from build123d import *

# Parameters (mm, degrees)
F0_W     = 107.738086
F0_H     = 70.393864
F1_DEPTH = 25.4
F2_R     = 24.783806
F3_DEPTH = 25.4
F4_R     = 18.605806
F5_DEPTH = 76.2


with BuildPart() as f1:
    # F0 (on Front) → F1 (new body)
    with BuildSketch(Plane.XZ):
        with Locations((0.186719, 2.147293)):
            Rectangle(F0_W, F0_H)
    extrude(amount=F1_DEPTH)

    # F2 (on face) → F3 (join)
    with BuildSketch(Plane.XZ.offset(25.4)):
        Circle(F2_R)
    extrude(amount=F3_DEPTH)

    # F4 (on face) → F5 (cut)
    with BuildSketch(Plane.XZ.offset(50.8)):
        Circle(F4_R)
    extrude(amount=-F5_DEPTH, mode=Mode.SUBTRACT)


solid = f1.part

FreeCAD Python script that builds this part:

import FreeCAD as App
import Part
import Sketcher
from FreeCAD import Vector
Q = App.Units.Quantity

doc = App.newDocument("Part")
body = doc.addObject("PartDesign::Body", "Body")

sketch1 = body.newObject("Sketcher::SketchObject", "Sketch")
sketch1.AttachmentSupport = (doc.getObject("XZ_Plane"), [""])
sketch1.MapMode = "FlatFace"
sketch1.addGeometry([
    Part.LineSegment(Vector(-54, 37, 0), Vector(-54, -33, 0)),
    Part.LineSegment(Vector(-54, -33, 0), Vector(54, -33, 0)),
    Part.LineSegment(Vector(54, -33, 0), Vector(54, 37, 0)),
    Part.LineSegment(Vector(54, 37, 0), Vector(-54, 37, 0)),
], False)
sketch1.addConstraint([
    Sketcher.Constraint("Coincident", 0, 2, 1, 1),
    Sketcher.Constraint("Coincident", 1, 2, 2, 1),
    Sketcher.Constraint("Coincident", 2, 2, 3, 1),
    Sketcher.Constraint("Coincident", 3, 2, 0, 1),
    Sketcher.Constraint("Vertical", 0),
    Sketcher.Constraint("Horizontal", 1),
    Sketcher.Constraint("Vertical", 2),
    Sketcher.Constraint("Horizontal", 3),
    Sketcher.Constraint("DistanceX", 1, 1, 1, 2, 107.738086),
    Sketcher.Constraint("DistanceY", 0, 2, 0, 1, 70.393864),
    Sketcher.Constraint("DistanceY", 0, 2, -1, 1, 33.049639),
    Sketcher.Constraint("DistanceX", 0, 2, -1, 1, 53.682324),
])
pad1 = body.newObject("PartDesign::Pad", "Pad")
pad1.Profile = sketch1
pad1.Length = Q("1 in")

sketch2 = body.newObject("Sketcher::SketchObject", "Sketch001")
sketch2.AttachmentSupport = (doc.getObject("XZ_Plane"), [""])
sketch2.MapMode = "FlatFace"
sketch2.AttachmentOffset = App.Placement(Vector(0, 0, 1 * 25.4), App.Rotation())
sketch2.addGeometry(Part.Circle(Vector(0, 0, 0), Vector(0, 0, 1), 25), False)
sketch2.addConstraint([
    Sketcher.Constraint("Coincident", 0, 3, -1, 1),
    Sketcher.Constraint("Diameter", 0, 49.567612),
])
pad2 = body.newObject("PartDesign::Pad", "Pad001")
pad2.Profile = sketch2
pad2.Length = Q("1 in")

sketch3 = body.newObject("Sketcher::SketchObject", "Sketch002")
sketch3.AttachmentSupport = (doc.getObject("XZ_Plane"), [""])
sketch3.MapMode = "FlatFace"
sketch3.AttachmentOffset = App.Placement(Vector(0, 0, 2 * 25.4), App.Rotation())
sketch3.addGeometry(Part.Circle(Vector(0, 0, 0), Vector(0, 0, 1), 19), False)
sketch3.addConstraint([
    Sketcher.Constraint("Coincident", 0, 3, -1, 1),
    Sketcher.Constraint("Diameter", 0, 37.211612),
])
pocket1 = body.newObject("PartDesign::Pocket", "Pocket")
pocket1.Profile = sketch3
pocket1.Length = Q("3 in")

doc.recompute()
